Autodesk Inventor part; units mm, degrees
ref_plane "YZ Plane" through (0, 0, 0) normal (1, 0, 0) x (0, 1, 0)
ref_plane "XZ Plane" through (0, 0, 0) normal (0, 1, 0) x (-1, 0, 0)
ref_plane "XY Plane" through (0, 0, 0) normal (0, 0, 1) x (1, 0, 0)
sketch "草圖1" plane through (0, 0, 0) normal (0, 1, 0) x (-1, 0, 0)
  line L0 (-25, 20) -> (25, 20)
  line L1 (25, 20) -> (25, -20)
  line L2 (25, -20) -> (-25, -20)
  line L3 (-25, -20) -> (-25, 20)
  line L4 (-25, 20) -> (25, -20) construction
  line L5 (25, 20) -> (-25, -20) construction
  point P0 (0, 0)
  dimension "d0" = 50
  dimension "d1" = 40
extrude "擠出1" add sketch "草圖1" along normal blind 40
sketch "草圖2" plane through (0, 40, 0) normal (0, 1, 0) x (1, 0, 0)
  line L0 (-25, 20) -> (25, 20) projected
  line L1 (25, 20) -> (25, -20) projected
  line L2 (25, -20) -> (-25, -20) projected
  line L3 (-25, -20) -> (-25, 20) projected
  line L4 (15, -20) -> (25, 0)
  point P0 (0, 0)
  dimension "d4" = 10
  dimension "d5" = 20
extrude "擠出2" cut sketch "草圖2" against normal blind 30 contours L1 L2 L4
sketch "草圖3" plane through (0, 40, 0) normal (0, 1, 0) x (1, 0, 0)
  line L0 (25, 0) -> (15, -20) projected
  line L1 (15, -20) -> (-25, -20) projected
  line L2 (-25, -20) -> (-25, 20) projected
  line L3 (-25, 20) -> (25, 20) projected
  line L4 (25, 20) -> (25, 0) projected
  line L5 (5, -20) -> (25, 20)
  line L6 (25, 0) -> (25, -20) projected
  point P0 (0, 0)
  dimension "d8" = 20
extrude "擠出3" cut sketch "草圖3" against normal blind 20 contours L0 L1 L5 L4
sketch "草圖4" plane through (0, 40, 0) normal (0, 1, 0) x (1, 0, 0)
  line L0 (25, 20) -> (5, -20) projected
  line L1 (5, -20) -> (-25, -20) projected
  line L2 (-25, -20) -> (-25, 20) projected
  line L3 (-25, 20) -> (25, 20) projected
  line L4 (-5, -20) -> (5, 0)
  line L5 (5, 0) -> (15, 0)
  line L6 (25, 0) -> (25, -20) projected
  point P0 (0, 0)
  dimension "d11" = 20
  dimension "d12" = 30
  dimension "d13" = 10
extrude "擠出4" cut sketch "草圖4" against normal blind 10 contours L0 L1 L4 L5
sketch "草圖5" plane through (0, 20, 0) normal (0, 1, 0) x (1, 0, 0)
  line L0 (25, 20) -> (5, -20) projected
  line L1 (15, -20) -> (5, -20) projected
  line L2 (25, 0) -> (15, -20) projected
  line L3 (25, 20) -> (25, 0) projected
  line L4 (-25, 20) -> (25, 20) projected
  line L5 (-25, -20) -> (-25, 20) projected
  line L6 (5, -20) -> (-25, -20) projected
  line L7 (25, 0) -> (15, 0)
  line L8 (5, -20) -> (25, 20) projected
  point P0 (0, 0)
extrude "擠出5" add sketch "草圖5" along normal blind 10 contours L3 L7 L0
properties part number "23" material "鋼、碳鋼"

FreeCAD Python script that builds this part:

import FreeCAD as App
import Part
import Sketcher


def add_polygon(sketch, points):
    """Adds a closed chain of lines whose ends are joined by coincident constraints."""
    first, n = sketch.GeometryCount, len(points)
    for a, b in zip(points, points[1:] + points[:1]):
        sketch.addGeometry(Part.LineSegment(App.Vector(*a, 0), App.Vector(*b, 0)), False)
    for i in range(n):
        sketch.addConstraint(Sketcher.Constraint("Coincident", first + i, 2, first + (i + 1) % n, 1))

doc = App.newDocument("Part")
body = doc.addObject("PartDesign::Body", "Body")

sketch1 = body.newObject("Sketcher::SketchObject", "Sketch")
sketch1.AttachmentSupport = (doc.getObject("XZ_Plane"), [""])
sketch1.MapMode = "FlatFace"
add_polygon(sketch1, [(-25, 20), (25, 20), (25, -20), (-25, -20)])
sketch1.addConstraint([
    Sketcher.Constraint("Horizontal", 0),
    Sketcher.Constraint("Vertical", 1),
    Sketcher.Constraint("Horizontal", 2),
    Sketcher.Constraint("Vertical", 3),
    Sketcher.Constraint("Symmetric", 0, 2, 2, 2, -1, 1),
    Sketcher.Constraint("DistanceX", 0, 1, 0, 2, 50.0),
    Sketcher.Constraint("DistanceY", 1, 2, 1, 1, 40.0),
])
pad1 = body.newObject("PartDesign::Pad", "Pad")
pad1.Profile = sketch1
pad1.Length = 40
pad1.Reversed = True

sketch2 = body.newObject("Sketcher::SketchObject", "Sketch001")
sketch2.AttachmentSupport = (doc.getObject("XZ_Plane"), [""])
sketch2.MapMode = "FlatFace"
sketch2.AttachmentOffset = App.Placement(App.Vector(0, 0, -40), App.Rotation())
add_polygon(sketch2, [(25, 20), (25, 0), (15, 20)])
sketch2.addConstraint([
    Sketcher.Constraint("Vertical", 0),
    Sketcher.Constraint("Horizontal", 2),
    Sketcher.Constraint("PointOnObject", 0, 2, -1),
    Sketcher.Constraint("DistanceX", 2, 1, 2, 2, 10.0),
    Sketcher.Constraint("DistanceY", 0, 2, 0, 1, 20.0),
    Sketcher.Constraint("DistanceX", -1, 1, 0, 2, 25.0),
])
pocket1 = body.newObject("PartDesign::Pocket", "Pocket")
pocket1.Profile = sketch2
pocket1.Length = 30
pocket1.Reversed = True

sketch3 = body.newObject("Sketcher::SketchObject", "Sketch002")
sketch3.AttachmentSupport = (doc.getObject("XZ_Plane"), [""])
sketch3.MapMode = "FlatFace"
sketch3.AttachmentOffset = App.Placement(App.Vector(0, 0, -40), App.Rotation())
add_polygon(sketch3, [(15, 20), (25, 0), (25, -20), (5, 20)])
sketch3.addConstraint([
    Sketcher.Constraint("Vertical", 1),
    Sketcher.Constraint("Horizontal", 3),
    Sketcher.Constraint("PointOnObject", 0, 2, -1),
    Sketcher.Constraint("Parallel", 0, 2),
    Sketcher.Constraint("DistanceY", 1, 2, 1, 1, 20.0),
    Sketcher.Constraint("DistanceY", -1, 1, 2, 2, 20.0),
    Sketcher.Constraint("DistanceX", 2, 2, 0, 2, 20.0),
    Sketcher.Constraint("DistanceX", -1, 1, 0, 2, 25.0),
])
pocket2 = body.newObject("PartDesign::Pocket", "Pocket001")
pocket2.Profile = sketch3
pocket2.Length = 20
pocket2.Reversed = True

sketch4 = body.newObject("Sketcher::SketchObject", "Sketch003")
sketch4.AttachmentSupport = (doc.getObject("XZ_Plane"), [""])
sketch4.MapMode = "FlatFace"
sketch4.AttachmentOffset = App.Placement(App.Vector(0, 0, -40), App.Rotation())
add_polygon(sketch4, [(5, 20), (15, 0), (5, 0), (-5, 20)])
sketch4.addConstraint([
    Sketcher.Constraint("Horizontal", 1),
    Sketcher.Constraint("Horizontal", 3),
    Sketcher.Constraint("PointOnObject", 0, 2, -1),
    Sketcher.Constraint("Parallel", 0, 2),
    Sketcher.Constraint("Vertical", 1, 2, 3, 2),
    Sketcher.Constraint("DistanceX", 1, 2, 1, 1, 10.0),
    Sketcher.Constraint("DistanceY", -1, 1, 2, 2, 20.0),
    Sketcher.Constraint("DistanceX", -1, 1, 0, 2, 15.0),
])
pocket3 = body.newObject("PartDesign::Pocket", "Pocket002")
pocket3.Profile = sketch4
pocket3.Length = 10
pocket3.Reversed = True

sketch5 = body.newObject("Sketcher::SketchObject", "Sketch004")
sketch5.AttachmentSupport = (doc.getObject("XZ_Plane"), [""])
sketch5.MapMode = "FlatFace"
sketch5.AttachmentOffset = App.Placement(App.Vector(0, 0, -20), App.Rotation())
add_polygon(sketch5, [(25, 0), (25, -20), (15, 0)])
sketch5.addConstraint([
    Sketcher.Constraint("Vertical", 0),
    Sketcher.Constraint("Horizontal", 2),
    Sketcher.Constraint("PointOnObject", 1, 2, -1),
    Sketcher.Constraint("DistanceX", 2, 1, 2, 2, 10.0),
    Sketcher.Constraint("DistanceY", 0, 2, 0, 1, 20.0),
    Sketcher.Constraint("DistanceX", -1, 1, 0, 2, 25.0),
])
pad2 = body.newObject("PartDesign::Pad", "Pad001")
pad2.Profile = sketch5
pad2.Length = 10
pad2.Reversed = True

doc.recompute()
